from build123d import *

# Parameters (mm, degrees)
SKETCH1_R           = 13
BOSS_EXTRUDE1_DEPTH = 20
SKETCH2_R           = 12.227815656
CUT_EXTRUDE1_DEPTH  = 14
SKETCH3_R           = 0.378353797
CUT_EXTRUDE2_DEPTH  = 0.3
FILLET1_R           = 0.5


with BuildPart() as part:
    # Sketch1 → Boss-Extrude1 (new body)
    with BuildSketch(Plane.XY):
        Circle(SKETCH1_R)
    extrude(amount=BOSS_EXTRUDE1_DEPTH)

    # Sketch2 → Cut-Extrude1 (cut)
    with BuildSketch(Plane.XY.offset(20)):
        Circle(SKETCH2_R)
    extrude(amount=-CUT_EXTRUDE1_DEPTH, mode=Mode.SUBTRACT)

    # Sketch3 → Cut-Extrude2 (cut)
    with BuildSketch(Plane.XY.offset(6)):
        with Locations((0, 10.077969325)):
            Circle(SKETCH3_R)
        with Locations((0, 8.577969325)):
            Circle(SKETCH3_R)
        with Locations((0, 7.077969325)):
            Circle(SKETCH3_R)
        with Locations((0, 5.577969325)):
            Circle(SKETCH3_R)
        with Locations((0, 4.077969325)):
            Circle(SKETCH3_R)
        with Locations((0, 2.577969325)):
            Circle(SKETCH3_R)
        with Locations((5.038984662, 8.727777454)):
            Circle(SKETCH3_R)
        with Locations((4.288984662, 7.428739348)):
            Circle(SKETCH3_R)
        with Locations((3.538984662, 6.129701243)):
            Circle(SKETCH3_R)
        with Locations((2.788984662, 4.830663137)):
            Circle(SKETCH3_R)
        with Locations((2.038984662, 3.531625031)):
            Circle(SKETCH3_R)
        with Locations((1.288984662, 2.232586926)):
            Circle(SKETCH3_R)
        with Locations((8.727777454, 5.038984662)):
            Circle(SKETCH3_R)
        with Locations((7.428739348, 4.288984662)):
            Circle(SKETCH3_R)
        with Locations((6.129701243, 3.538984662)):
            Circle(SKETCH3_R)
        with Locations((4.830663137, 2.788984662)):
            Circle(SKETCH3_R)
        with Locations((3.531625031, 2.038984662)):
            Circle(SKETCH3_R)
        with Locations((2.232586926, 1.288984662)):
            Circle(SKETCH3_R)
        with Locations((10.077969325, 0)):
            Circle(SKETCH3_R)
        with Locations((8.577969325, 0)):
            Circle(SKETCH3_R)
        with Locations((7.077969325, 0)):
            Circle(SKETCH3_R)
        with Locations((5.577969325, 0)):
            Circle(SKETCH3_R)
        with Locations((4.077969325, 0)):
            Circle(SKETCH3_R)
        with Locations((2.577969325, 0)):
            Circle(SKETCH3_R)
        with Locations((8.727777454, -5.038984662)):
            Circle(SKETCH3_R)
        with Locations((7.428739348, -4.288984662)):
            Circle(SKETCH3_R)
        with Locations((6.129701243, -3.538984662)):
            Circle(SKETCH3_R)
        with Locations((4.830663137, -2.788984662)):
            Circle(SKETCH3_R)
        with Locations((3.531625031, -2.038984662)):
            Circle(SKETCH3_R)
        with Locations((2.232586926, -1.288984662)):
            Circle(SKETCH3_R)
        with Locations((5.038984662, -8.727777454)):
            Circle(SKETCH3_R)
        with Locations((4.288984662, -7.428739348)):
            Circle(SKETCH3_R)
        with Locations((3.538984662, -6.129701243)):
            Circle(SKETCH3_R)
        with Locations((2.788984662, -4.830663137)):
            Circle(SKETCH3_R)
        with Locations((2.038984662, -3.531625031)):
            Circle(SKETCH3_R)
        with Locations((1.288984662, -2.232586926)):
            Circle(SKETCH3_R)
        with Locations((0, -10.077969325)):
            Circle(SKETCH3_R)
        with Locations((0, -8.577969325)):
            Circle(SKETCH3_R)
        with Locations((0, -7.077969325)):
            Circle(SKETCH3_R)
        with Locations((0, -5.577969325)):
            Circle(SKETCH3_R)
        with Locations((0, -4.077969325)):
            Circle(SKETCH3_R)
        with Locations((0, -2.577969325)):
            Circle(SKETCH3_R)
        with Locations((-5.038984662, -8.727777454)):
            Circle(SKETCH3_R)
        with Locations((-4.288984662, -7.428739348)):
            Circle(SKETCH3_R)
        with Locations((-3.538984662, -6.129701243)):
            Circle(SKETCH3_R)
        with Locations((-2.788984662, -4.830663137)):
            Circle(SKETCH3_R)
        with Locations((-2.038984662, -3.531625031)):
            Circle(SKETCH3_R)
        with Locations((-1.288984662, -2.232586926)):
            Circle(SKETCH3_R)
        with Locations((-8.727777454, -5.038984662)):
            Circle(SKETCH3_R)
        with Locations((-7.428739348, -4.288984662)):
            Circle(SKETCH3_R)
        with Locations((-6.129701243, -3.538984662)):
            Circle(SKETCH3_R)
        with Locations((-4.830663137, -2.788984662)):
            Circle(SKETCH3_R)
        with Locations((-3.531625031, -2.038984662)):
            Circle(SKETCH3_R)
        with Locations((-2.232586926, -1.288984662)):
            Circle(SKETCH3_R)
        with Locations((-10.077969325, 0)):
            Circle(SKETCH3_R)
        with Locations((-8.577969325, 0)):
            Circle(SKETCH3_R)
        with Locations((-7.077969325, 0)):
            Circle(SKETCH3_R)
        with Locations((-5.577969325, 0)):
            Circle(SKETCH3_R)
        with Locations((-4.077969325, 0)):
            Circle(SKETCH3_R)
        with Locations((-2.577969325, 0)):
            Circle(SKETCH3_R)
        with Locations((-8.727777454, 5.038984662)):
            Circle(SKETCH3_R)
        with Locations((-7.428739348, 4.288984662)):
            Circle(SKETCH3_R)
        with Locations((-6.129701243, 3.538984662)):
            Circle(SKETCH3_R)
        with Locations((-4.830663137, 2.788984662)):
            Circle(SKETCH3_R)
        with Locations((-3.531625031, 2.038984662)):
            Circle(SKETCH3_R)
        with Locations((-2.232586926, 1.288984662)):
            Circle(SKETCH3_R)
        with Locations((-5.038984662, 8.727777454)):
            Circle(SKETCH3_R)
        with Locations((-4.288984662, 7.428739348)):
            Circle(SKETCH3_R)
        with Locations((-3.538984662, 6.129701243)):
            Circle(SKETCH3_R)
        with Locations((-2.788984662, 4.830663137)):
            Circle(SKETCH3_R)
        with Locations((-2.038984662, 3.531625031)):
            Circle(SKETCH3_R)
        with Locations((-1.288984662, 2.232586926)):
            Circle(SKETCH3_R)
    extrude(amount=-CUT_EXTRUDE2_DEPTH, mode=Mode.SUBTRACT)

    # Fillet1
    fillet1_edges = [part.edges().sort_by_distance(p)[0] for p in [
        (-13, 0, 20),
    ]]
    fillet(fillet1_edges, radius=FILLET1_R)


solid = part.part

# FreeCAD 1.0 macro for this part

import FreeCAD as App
import Part
import Sketcher


def edges_at(feature, points):
    """Names of the edges that pass closest to the given points."""
    edges = feature.Shape.Edges
    near = lambda p: min(range(len(edges)), key=lambda i: edges[i].distToShape(Part.Vertex(*p))[0])
    return sorted({f"Edge{near(p) + 1}" for p in points})

doc = App.newDocument("Part")
body = doc.addObject("PartDesign::Body", "Body")

# Sketch on XY plane
sketch1 = body.newObject("Sketcher::SketchObject", "Sketch")
sketch1.AttachmentSupport = (doc.getObject("XY_Plane"), [""])
sketch1.MapMode = "FlatFace"
sketch1.addGeometry(Part.Circle(App.Vector(0, 0, 0), App.Vector(0, 0, 1), 13), False)
sketch1.addConstraint([
    Sketcher.Constraint("Coincident", 0, 3, -1, 1),
    Sketcher.Constraint("Diameter", 0, 26.0),
])
pad1 = body.newObject("PartDesign::Pad", "Pad")
pad1.Profile = sketch1
pad1.Length = 20

# Sketch on XY plane
sketch2 = body.newObject("Sketcher::SketchObject", "Sketch001")
sketch2.AttachmentSupport = (doc.getObject("XY_Plane"), [""])
sketch2.MapMode = "FlatFace"
sketch2.AttachmentOffset = App.Placement(App.Vector(0, 0, 20), App.Rotation())
sketch2.addGeometry(Part.Circle(App.Vector(0, 0, 0), App.Vector(0, 0, 1), 12), False)
sketch2.addConstraint([
    Sketcher.Constraint("Coincident", 0, 3, -1, 1),
    Sketcher.Constraint("Diameter", 0, 24.455631),
])
pocket1 = body.newObject("PartDesign::Pocket", "Pocket")
pocket1.Profile = sketch2
pocket1.Length = 14

# Sketch on XY plane
sketch3 = body.newObject("Sketcher::SketchObject", "Sketch002")
sketch3.AttachmentSupport = (doc.getObject("XY_Plane"), [""])
sketch3.MapMode = "FlatFace"
sketch3.AttachmentOffset = App.Placement(App.Vector(0, 0, 6), App.Rotation())
sketch3.addGeometry([
    Part.Circle(App.Vector(0, 10.08, 0), App.Vector(0, 0, 1), 0.38),  # 0
    Part.Circle(App.Vector(0, 8.58, 0), App.Vector(0, 0, 1), 0.38),  # 1
    Part.Circle(App.Vector(0, 7.08, 0), App.Vector(0, 0, 1), 0.38),  # 2
    Part.Circle(App.Vector(0, 5.58, 0), App.Vector(0, 0, 1), 0.38),  # 3
    Part.Circle(App.Vector(0, 4.08, 0), App.Vector(0, 0, 1), 0.38),  # 4
    Part.Circle(App.Vector(0, 2.58, 0), App.Vector(0, 0, 1), 0.38),  # 5
    Part.Circle(App.Vector(5.04, 8.73, 0), App.Vector(0, 0, 1), 0.38),  # 6
    Part.Circle(App.Vector(4.29, 7.43, 0), App.Vector(0, 0, 1), 0.38),  # 7
    Part.Circle(App.Vector(3.54, 6.13, 0), App.Vector(0, 0, 1), 0.38),  # 8
    Part.Circle(App.Vector(2.79, 4.83, 0), App.Vector(0, 0, 1), 0.38),  # 9
    Part.Circle(App.Vector(2.04, 3.53, 0), App.Vector(0, 0, 1), 0.38),  # 10
    Part.Circle(App.Vector(1.29, 2.23, 0), App.Vector(0, 0, 1), 0.38),  # 11
    Part.Circle(App.Vector(8.73, 5.04, 0), App.Vector(0, 0, 1), 0.38),  # 12
    Part.Circle(App.Vector(7.43, 4.29, 0), App.Vector(0, 0, 1), 0.38),  # 13
    Part.Circle(App.Vector(6.13, 3.54, 0), App.Vector(0, 0, 1), 0.38),  # 14
    Part.Circle(App.Vector(4.83, 2.79, 0), App.Vector(0, 0, 1), 0.38),  # 15
    Part.Circle(App.Vector(3.53, 2.04, 0), App.Vector(0, 0, 1), 0.38),  # 16
    Part.Circle(App.Vector(2.23, 1.29, 0), App.Vector(0, 0, 1), 0.38),  # 17
    Part.Circle(App.Vector(10.08, 0, 0), App.Vector(0, 0, 1), 0.38),  # 18
    Part.Circle(App.Vector(8.58, 0, 0), App.Vector(0, 0, 1), 0.38),  # 19
    Part.Circle(App.Vector(7.08, 0, 0), App.Vector(0, 0, 1), 0.38),  # 20
    Part.Circle(App.Vector(5.58, 0, 0), App.Vector(0, 0, 1), 0.38),  # 21
    Part.Circle(App.Vector(4.08, 0, 0), App.Vector(0, 0, 1), 0.38),  # 22
    Part.Circle(App.Vector(2.58, 0, 0), App.Vector(0, 0, 1), 0.38),  # 23
    Part.Circle(App.Vector(8.73, -5.04, 0), App.Vector(0, 0, 1), 0.38),  # 24
    Part.Circle(App.Vector(7.43, -4.29, 0), App.Vector(0, 0, 1), 0.38),  # 25
    Part.Circle(App.Vector(6.13, -3.54, 0), App.Vector(0, 0, 1), 0.38),  # 26
    Part.Circle(App.Vector(4.83, -2.79, 0), App.Vector(0, 0, 1), 0.38),  # 27
    Part.Circle(App.Vector(3.53, -2.04, 0), App.Vector(0, 0, 1), 0.38),  # 28
    Part.Circle(App.Vector(2.23, -1.29, 0), App.Vector(0, 0, 1), 0.38),  # 29
    Part.Circle(App.Vector(5.04, -8.73, 0), App.Vector(0, 0, 1), 0.38),  # 30
    Part.Circle(App.Vector(4.29, -7.43, 0), App.Vector(0, 0, 1), 0.38),  # 31
    Part.Circle(App.Vector(3.54, -6.13, 0), App.Vector(0, 0, 1), 0.38),  # 32
    Part.Circle(App.Vector(2.79, -4.83, 0), App.Vector(0, 0, 1), 0.38),  # 33
    Part.Circle(App.Vector(2.04, -3.53, 0), App.Vector(0, 0, 1), 0.38),  # 34
    Part.Circle(App.Vector(1.29, -2.23, 0), App.Vector(0, 0, 1), 0.38),  # 35
    Part.Circle(App.Vector(0, -10.08, 0), App.Vector(0, 0, 1), 0.38),  # 36
    Part.Circle(App.Vector(0, -8.58, 0), App.Vector(0, 0, 1), 0.38),  # 37
    Part.Circle(App.Vector(0, -7.08, 0), App.Vector(0, 0, 1), 0.38),  # 38
    Part.Circle(App.Vector(0, -5.58, 0), App.Vector(0, 0, 1), 0.38),  # 39
    Part.Circle(App.Vector(0, -4.08, 0), App.Vector(0, 0, 1), 0.38),  # 40
    Part.Circle(App.Vector(0, -2.58, 0), App.Vector(0, 0, 1), 0.38),  # 41
    Part.Circle(App.Vector(-5.04, -8.73, 0), App.Vector(0, 0, 1), 0.38),  # 42
    Part.Circle(App.Vector(-4.29, -7.43, 0), App.Vector(0, 0, 1), 0.38),  # 43
    Part.Circle(App.Vector(-3.54, -6.13, 0), App.Vector(0, 0, 1), 0.38),  # 44
    Part.Circle(App.Vector(-2.79, -4.83, 0), App.Vector(0, 0, 1), 0.38),  # 45
    Part.Circle(App.Vector(-2.04, -3.53, 0), App.Vector(0, 0, 1), 0.38),  # 46
    Part.Circle(App.Vector(-1.29, -2.23, 0), App.Vector(0, 0, 1), 0.38),  # 47
    Part.Circle(App.Vector(-8.73, -5.04, 0), App.Vector(0, 0, 1), 0.38),  # 48
    Part.Circle(App.Vector(-7.43, -4.29, 0), App.Vector(0, 0, 1), 0.38),  # 49
    Part.Circle(App.Vector(-6.13, -3.54, 0), App.Vector(0, 0, 1), 0.38),  # 50
    Part.Circle(App.Vector(-4.83, -2.79, 0), App.Vector(0, 0, 1), 0.38),  # 51
    Part.Circle(App.Vector(-3.53, -2.04, 0), App.Vector(0, 0, 1), 0.38),  # 52
    Part.Circle(App.Vector(-2.23, -1.29, 0), App.Vector(0, 0, 1), 0.38),  # 53
    Part.Circle(App.Vector(-10.08, 0, 0), App.Vector(0, 0, 1), 0.38),  # 54
    Part.Circle(App.Vector(-8.58, 0, 0), App.Vector(0, 0, 1), 0.38),  # 55
    Part.Circle(App.Vector(-7.08, 0, 0), App.Vector(0, 0, 1), 0.38),  # 56
    Part.Circle(App.Vector(-5.58, 0, 0), App.Vector(0, 0, 1), 0.38),  # 57
    Part.Circle(App.Vector(-4.08, 0, 0), App.Vector(0, 0, 1), 0.38),  # 58
    Part.Circle(App.Vector(-2.58, 0, 0), App.Vector(0, 0, 1), 0.38),  # 59
    Part.Circle(App.Vector(-8.73, 5.04, 0), App.Vector(0, 0, 1), 0.38),  # 60
    Part.Circle(App.Vector(-7.43, 4.29, 0), App.Vector(0, 0, 1), 0.38),  # 61
    Part.Circle(App.Vector(-6.13, 3.54, 0), App.Vector(0, 0, 1), 0.38),  # 62
    Part.Circle(App.Vector(-4.83, 2.79, 0), App.Vector(0, 0, 1), 0.38),  # 63
    Part.Circle(App.Vector(-3.53, 2.04, 0), App.Vector(0, 0, 1), 0.38),  # 64
    Part.Circle(App.Vector(-2.23, 1.29, 0), App.Vector(0, 0, 1), 0.38),  # 65
    Part.Circle(App.Vector(-5.04, 8.73, 0), App.Vector(0, 0, 1), 0.38),  # 66
    Part.Circle(App.Vector(-4.29, 7.43, 0), App.Vector(0, 0, 1), 0.38),  # 67
    Part.Circle(App.Vector(-3.54, 6.13, 0), App.Vector(0, 0, 1), 0.38),  # 68
    Part.Circle(App.Vector(-2.79, 4.83, 0), App.Vector(0, 0, 1), 0.38),  # 69
    Part.Circle(App.Vector(-2.04, 3.53, 0), App.Vector(0, 0, 1), 0.38),  # 70
    Part.Circle(App.Vector(-1.29, 2.23, 0), App.Vector(0, 0, 1), 0.38),  # 71
], False)
sketch3.addConstraint([
    Sketcher.Constraint("Equal", 0, 1),
    Sketcher.Constraint("Equal", 1, 2),
    Sketcher.Constraint("Equal", 2, 3),
    Sketcher.Constraint("Equal", 3, 4),
    Sketcher.Constraint("Equal", 4, 5),
    Sketcher.Constraint("Equal", 5, 6),
    Sketcher.Constraint("Equal", 6, 7),
    Sketcher.Constraint("Equal", 7, 8),
    Sketcher.Constraint("Equal", 8, 9),
    Sketcher.Constraint("Equal", 9, 10),
    Sketcher.Constraint("Equal", 10, 11),
    Sketcher.Constraint("Equal", 11, 12),
    Sketcher.Constraint("Equal", 12, 13),
    Sketcher.Constraint("Equal", 13, 14),
    Sketcher.Constraint("Equal", 14, 15),
    Sketcher.Constraint("Equal", 15, 16),
    Sketcher.Constraint("Equal", 16, 17),
    Sketcher.Constraint("Equal", 17, 18),
    Sketcher.Constraint("Equal", 18, 19),
    Sketcher.Constraint("Equal", 19, 20),
    Sketcher.Constraint("Equal", 20, 21),
    Sketcher.Constraint("Equal", 21, 22),
    Sketcher.Constraint("Equal", 22, 23),
    Sketcher.Constraint("Equal", 23, 24),
    Sketcher.Constraint("Equal", 24, 25),
    Sketcher.Constraint("Equal", 25, 26),
    Sketcher.Constraint("Equal", 26, 27),
    Sketcher.Constraint("Equal", 27, 28),
    Sketcher.Constraint("Equal", 28, 29),
    Sketcher.Constraint("Equal", 29, 30),
    Sketcher.Constraint("Equal", 30, 31),
    Sketcher.Constraint("Equal", 31, 32),
    Sketcher.Constraint("Equal", 32, 33),
    Sketcher.Constraint("Equal", 33, 34),
    Sketcher.Constraint("Equal", 34, 35),
    Sketcher.Constraint("Equal", 35, 36),
    Sketcher.Constraint("Equal", 36, 37),
    Sketcher.Constraint("Equal", 37, 38),
    Sketcher.Constraint("Equal", 38, 39),
    Sketcher.Constraint("Equal", 39, 40),
    Sketcher.Constraint("Equal", 40, 41),
    Sketcher.Constraint("Equal", 41, 42),
    Sketcher.Constraint("Equal", 42, 43),
    Sketcher.Constraint("Equal", 43, 44),
    Sketcher.Constraint("Equal", 44, 45),
    Sketcher.Constraint("Equal", 45, 46),
    Sketcher.Constraint("Equal", 46, 47),
    Sketcher.Constraint("Equal", 47, 48),
    Sketcher.Constraint("Equal", 48, 49),
    Sketcher.Constraint("Equal", 49, 50),
    Sketcher.Constraint("Equal", 50, 51),
    Sketcher.Constraint("Equal", 51, 52),
    Sketcher.Constraint("Equal", 52, 53),
    Sketcher.Constraint("Equal", 53, 54),
    Sketcher.Constraint("Equal", 54, 55),
    Sketcher.Constraint("Equal", 55, 56),
    Sketcher.Constraint("Equal", 56, 57),
    Sketcher.Constraint("Equal", 57, 58),
    Sketcher.Constraint("Equal", 58, 59),
    Sketcher.Constraint("Equal", 59, 60),
    Sketcher.Constraint("Equal", 60, 61),
    Sketcher.Constraint("Equal", 61, 62),
    Sketcher.Constraint("Equal", 62, 63),
    Sketcher.Constraint("Equal", 63, 64),
    Sketcher.Constraint("Equal", 64, 65),
    Sketcher.Constraint("Equal", 65, 66),
    Sketcher.Constraint("Equal", 66, 67),
    Sketcher.Constraint("Equal", 67, 68),
    Sketcher.Constraint("Equal", 68, 69),
    Sketcher.Constraint("Equal", 69, 70),
    Sketcher.Constraint("Equal", 70, 71),
    Sketcher.Constraint("Symmetric", 0, 3, 36, 3, -1, 1),
    Sketcher.Constraint("Symmetric", 1, 3, 37, 3, -1, 1),
    Sketcher.Constraint("Symmetric", 2, 3, 38, 3, -1, 1),
    Sketcher.Constraint("Symmetric", 3, 3, 39, 3, -1, 1),
    Sketcher.Constraint("Symmetric", 4, 3, 40, 3, -1, 1),
    Sketcher.Constraint("Symmetric", 5, 3, 41, 3, -1, 1),
    Sketcher.Constraint("Symmetric", 6, 3, 42, 3, -1, 1),
    Sketcher.Constraint("Symmetric", 7, 3, 43, 3, -1, 1),
    Sketcher.Constraint("Symmetric", 8, 3, 44, 3, -1, 1),
    Sketcher.Constraint("Symmetric", 9, 3, 45, 3, -1, 1),
    Sketcher.Constraint("Symmetric", 10, 3, 46, 3, -1, 1),
    Sketcher.Constraint("Symmetric", 11, 3, 47, 3, -1, 1),
    Sketcher.Constraint("Symmetric", 12, 3, 48, 3, -1, 1),
    Sketcher.Constraint("Symmetric", 13, 3, 49, 3, -1, 1),
    Sketcher.Constraint("Symmetric", 14, 3, 50, 3, -1, 1),
    Sketcher.Constraint("Symmetric", 15, 3, 51, 3, -1, 1),
    Sketcher.Constraint("Symmetric", 16, 3, 52, 3, -1, 1),
    Sketcher.Constraint("Symmetric", 17, 3, 53, 3, -1, 1),
    Sketcher.Constraint("Symmetric", 18, 3, 54, 3, -1, 1),
    Sketcher.Constraint("Symmetric", 19, 3, 55, 3, -1, 1),
    Sketcher.Constraint("Symmetric", 20, 3, 56, 3, -1, 1),
    Sketcher.Constraint("Symmetric", 21, 3, 57, 3, -1, 1),
    Sketcher.Constraint("Symmetric", 22, 3, 58, 3, -1, 1),
    Sketcher.Constraint("Symmetric", 23, 3, 59, 3, -1, 1),
    Sketcher.Constraint("Symmetric", 24, 3, 60, 3, -1, 1),
    Sketcher.Constraint("Symmetric", 25, 3, 61, 3, -1, 1),
    Sketcher.Constraint("Symmetric", 26, 3, 62, 3, -1, 1),
    Sketcher.Constraint("Symmetric", 27, 3, 63, 3, -1, 1),
    Sketcher.Constraint("Symmetric", 28, 3, 64, 3, -1, 1),
    Sketcher.Constraint("Symmetric", 29, 3, 65, 3, -1, 1),
    Sketcher.Constraint("Symmetric", 30, 3, 66, 3, -1, 1),
    Sketcher.Constraint("Symmetric", 31, 3, 67, 3, -1, 1),
    Sketcher.Constraint("Symmetric", 32, 3, 68, 3, -1, 1),
    Sketcher.Constraint("Symmetric", 33, 3, 69, 3, -1, 1),
    Sketcher.Constraint("Symmetric", 34, 3, 70, 3, -1, 1),
    Sketcher.Constraint("Symmetric", 35, 3, 71, 3, -1, 1),
    Sketcher.Constraint("Symmetric", 30, 3, 42, 3, -2),
    Sketcher.Constraint("Symmetric", 31, 3, 43, 3, -2),
    Sketcher.Constraint("Symmetric", 32, 3, 44, 3, -2),
    Sketcher.Constraint("Symmetric", 33, 3, 45, 3, -2),
    Sketcher.Constraint("Symmetric", 34, 3, 46, 3, -2),
    Sketcher.Constraint("Symmetric", 35, 3, 47, 3, -2),
    Sketcher.Constraint("Symmetric", 24, 3, 48, 3, -2),
    Sketcher.Constraint("Symmetric", 25, 3, 49, 3, -2),
    Sketcher.Constraint("Symmetric", 26, 3, 50, 3, -2),
    Sketcher.Constraint("Symmetric", 27, 3, 51, 3, -2),
    Sketcher.Constraint("Symmetric", 28, 3, 52, 3, -2),
    Sketcher.Constraint("Symmetric", 29, 3, 53, 3, -2),
    Sketcher.Constraint("PointOnObject", 0, 3, -2),
    Sketcher.Constraint("PointOnObject", 1, 3, -2),
    Sketcher.Constraint("PointOnObject", 2, 3, -2),
    Sketcher.Constraint("PointOnObject", 3, 3, -2),
    Sketcher.Constraint("PointOnObject", 4, 3, -2),
    Sketcher.Constraint("PointOnObject", 5, 3, -2),
    Sketcher.Constraint("PointOnObject", 18, 3, -1),
    Sketcher.Constraint("PointOnObject", 19, 3, -1),
    Sketcher.Constraint("PointOnObject", 20, 3, -1),
    Sketcher.Constraint("PointOnObject", 21, 3, -1),
    Sketcher.Constraint("PointOnObject", 22, 3, -1),
    Sketcher.Constraint("PointOnObject", 23, 3, -1),
    Sketcher.Constraint("Diameter", 0, 0.756708),
    Sketcher.Constraint("DistanceY", -1, 1, 8, 3, 6.129701),
    Sketcher.Constraint("DistanceX", -1, 1, 14, 3, 6.129701),
    Sketcher.Constraint("DistanceY", -1, 1, 0, 3, 10.077969),
    Sketcher.Constraint("DistanceY", -1, 1, 1, 3, 8.577969),
    Sketcher.Constraint("DistanceY", -1, 1, 2, 3, 7.077969),
    Sketcher.Constraint("DistanceY", -1, 1, 3, 3, 5.577969),
    Sketcher.Constraint("DistanceY", -1, 1, 4, 3, 4.077969),
    Sketcher.Constraint("DistanceY", -1, 1, 5, 3, 2.577969),
    Sketcher.Constraint("DistanceY", -1, 1, 7, 3, 7.428739),
    Sketcher.Constraint("DistanceX", -1, 1, 13, 3, 7.428739),
    Sketcher.Constraint("DistanceX", -1, 1, 18, 3, 10.077969),
    Sketcher.Constraint("DistanceX", -1, 1, 19, 3, 8.577969),
    Sketcher.Constraint("DistanceX", -1, 1, 20, 3, 7.077969),
    Sketcher.Constraint("DistanceX", -1, 1, 21, 3, 5.577969),
    Sketcher.Constraint("DistanceX", -1, 1, 22, 3, 4.077969),
    Sketcher.Constraint("DistanceX", -1, 1, 23, 3, 2.577969),
    Sketcher.Constraint("DistanceX", -1, 1, 6, 3, 5.038985),
    Sketcher.Constraint("DistanceY", -1, 1, 6, 3, 8.727777),
    Sketcher.Constraint("DistanceX", -1, 1, 7, 3, 4.288985),
    Sketcher.Constraint("DistanceX", -1, 1, 8, 3, 3.538985),
    Sketcher.Constraint("DistanceX", -1, 1, 9, 3, 2.788985),
    Sketcher.Constraint("DistanceY", -1, 1, 9, 3, 4.830663),
    Sketcher.Constraint("DistanceX", -1, 1, 10, 3, 2.038985),
    Sketcher.Constraint("DistanceY", -1, 1, 10, 3, 3.531625),
    Sketcher.Constraint("DistanceX", -1, 1, 11, 3, 1.288985),
    Sketcher.Constraint("DistanceY", -1, 1, 11, 3, 2.232587),
    Sketcher.Constraint("DistanceX", -1, 1, 12, 3, 8.727777),
    Sketcher.Constraint("DistanceY", -1, 1, 12, 3, 5.038985),
    Sketcher.Constraint("DistanceY", -1, 1, 13, 3, 4.288985),
    Sketcher.Constraint("DistanceY", -1, 1, 14, 3, 3.538985),
    Sketcher.Constraint("DistanceX", -1, 1, 15, 3, 4.830663),
    Sketcher.Constraint("DistanceY", -1, 1, 15, 3, 2.788985),
    Sketcher.Constraint("DistanceX", -1, 1, 16, 3, 3.531625),
    Sketcher.Constraint("DistanceY", -1, 1, 16, 3, 2.038985),
    Sketcher.Constraint("DistanceX", -1, 1, 17, 3, 2.232587),
    Sketcher.Constraint("DistanceY", -1, 1, 17, 3, 1.288985),
])
pocket2 = body.newObject("PartDesign::Pocket", "Pocket001")
pocket2.Profile = sketch3
pocket2.Length = 0.3
doc.recompute()

fillet = body.newObject("PartDesign::Fillet", "Fillet")
fillet.Base = (pocket2, edges_at(pocket2, [(-13, 0, 20)]))
fillet.Radius = 0.5

doc.recompute()
